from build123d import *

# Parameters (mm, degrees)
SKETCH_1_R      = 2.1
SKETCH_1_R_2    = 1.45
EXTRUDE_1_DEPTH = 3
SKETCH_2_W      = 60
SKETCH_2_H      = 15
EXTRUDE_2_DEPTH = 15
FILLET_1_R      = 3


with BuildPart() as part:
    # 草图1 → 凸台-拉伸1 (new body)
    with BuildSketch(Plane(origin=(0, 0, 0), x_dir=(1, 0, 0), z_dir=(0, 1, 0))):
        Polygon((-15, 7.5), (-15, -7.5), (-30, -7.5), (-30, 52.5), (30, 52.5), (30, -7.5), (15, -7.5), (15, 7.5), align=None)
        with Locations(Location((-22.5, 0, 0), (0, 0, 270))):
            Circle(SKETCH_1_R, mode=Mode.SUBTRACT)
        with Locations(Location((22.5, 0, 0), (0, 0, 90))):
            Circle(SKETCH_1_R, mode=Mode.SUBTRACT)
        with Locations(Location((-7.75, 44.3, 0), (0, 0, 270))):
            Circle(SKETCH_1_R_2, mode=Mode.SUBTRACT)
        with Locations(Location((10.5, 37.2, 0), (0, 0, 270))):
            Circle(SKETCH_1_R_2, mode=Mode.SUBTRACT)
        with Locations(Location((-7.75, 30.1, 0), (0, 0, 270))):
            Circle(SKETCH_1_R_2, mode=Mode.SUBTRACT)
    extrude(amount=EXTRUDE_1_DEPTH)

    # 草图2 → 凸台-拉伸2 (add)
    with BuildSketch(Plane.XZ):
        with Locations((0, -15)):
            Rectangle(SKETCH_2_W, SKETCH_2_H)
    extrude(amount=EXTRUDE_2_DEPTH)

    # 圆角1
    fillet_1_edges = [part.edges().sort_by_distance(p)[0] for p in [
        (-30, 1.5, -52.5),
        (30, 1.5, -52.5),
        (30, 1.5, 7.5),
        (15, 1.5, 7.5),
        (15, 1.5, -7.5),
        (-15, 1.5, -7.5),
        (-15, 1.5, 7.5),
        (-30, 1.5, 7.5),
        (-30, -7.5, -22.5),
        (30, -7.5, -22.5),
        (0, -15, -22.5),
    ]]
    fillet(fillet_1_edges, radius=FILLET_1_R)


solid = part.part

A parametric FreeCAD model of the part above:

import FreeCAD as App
import Part
import Sketcher
from FreeCAD import Vector


def edges_at(feature, points):
    """Names of the edges that pass closest to the given points."""
    edges = feature.Shape.Edges
    near = lambda p: min(range(len(edges)), key=lambda i: edges[i].distToShape(Part.Vertex(*p))[0])
    return sorted({f"Edge{near(p) + 1}" for p in points})

doc = App.newDocument("Part")
body = doc.addObject("PartDesign::Body", "Body")

# Sketch on XZ plane
sketch1 = body.newObject("Sketcher::SketchObject", "Sketch")
sketch1.AttachmentSupport = (doc.getObject("XZ_Plane"), [""])
sketch1.MapMode = "FlatFace"
sketch1.addGeometry([
    Part.LineSegment(Vector(-15, 7.5, 0), Vector(-15, -7.5, 0)),  # 0
    Part.LineSegment(Vector(-15, -7.5, 0), Vector(15, -7.5, 0)),  # 1
    Part.LineSegment(Vector(15, -7.5, 0), Vector(15, 7.5, 0)),  # 2
    Part.LineSegment(Vector(15, 7.5, 0), Vector(30, 7.5, 0)),  # 3
    Part.LineSegment(Vector(30, 7.5, 0), Vector(30, -52.5, 0)),  # 4
    Part.LineSegment(Vector(30, -52.5, 0), Vector(-30, -52.5, 0)),  # 5
    Part.LineSegment(Vector(-30, -52.5, 0), Vector(-30, 7.5, 0)),  # 6
    Part.LineSegment(Vector(-30, 7.5, 0), Vector(-15, 7.5, 0)),  # 7
    Part.Circle(Vector(22.5, 0, 0), Vector(0, 0, 1), 2.1),  # 8
    Part.Circle(Vector(-22.5, 0, 0), Vector(0, 0, 1), 2.1),  # 9
    Part.Circle(Vector(10.5, -37.2, 0), Vector(0, 0, 1), 1.4),  # 10
    Part.Circle(Vector(-7.8, -30.1, 0), Vector(0, 0, 1), 1.4),  # 11
    Part.Circle(Vector(-7.8, -44.3, 0), Vector(0, 0, 1), 1.4),  # 12
], False)
sketch1.addConstraint([
    Sketcher.Constraint("Coincident", 0, 2, 1, 1),
    Sketcher.Constraint("Coincident", 1, 2, 2, 1),
    Sketcher.Constraint("Coincident", 2, 2, 3, 1),
    Sketcher.Constraint("Coincident", 3, 2, 4, 1),
    Sketcher.Constraint("Coincident", 4, 2, 5, 1),
    Sketcher.Constraint("Coincident", 5, 2, 6, 1),
    Sketcher.Constraint("Coincident", 6, 2, 7, 1),
    Sketcher.Constraint("Coincident", 7, 2, 0, 1),
    Sketcher.Constraint("Vertical", 0),
    Sketcher.Constraint("Horizontal", 1),
    Sketcher.Constraint("Vertical", 2),
    Sketcher.Constraint("Horizontal", 3),
    Sketcher.Constraint("Vertical", 4),
    Sketcher.Constraint("Horizontal", 5),
    Sketcher.Constraint("Vertical", 6),
    Sketcher.Constraint("Horizontal", 7),
    Sketcher.Constraint("Equal", 8, 9),
    Sketcher.Constraint("Equal", 10, 11),
    Sketcher.Constraint("Equal", 11, 12),
    Sketcher.Constraint("Symmetric", 8, 3, 9, 3, -1, 1),
    Sketcher.Constraint("Symmetric", 0, 2, 2, 2, -1, 1),
    Sketcher.Constraint("Symmetric", 3, 2, 6, 2, -2),
    Sketcher.Constraint("PointOnObject", 8, 3, -1),
    Sketcher.Constraint("Vertical", 11, 3, 12, 3),
    Sketcher.Constraint("Equal", 7, 0),
    Sketcher.Constraint("Equal", 5, 4),
    Sketcher.Constraint("Diameter", 8, 4.2),
    Sketcher.Constraint("Diameter", 10, 2.9),
    Sketcher.Constraint("DistanceX", 1, 1, 1, 2, 30.0),
    Sketcher.Constraint("DistanceX", 3, 1, 3, 2, 15.0),
    Sketcher.Constraint("DistanceX", 9, 3, 8, 3, 45.0),
    Sketcher.Constraint("DistanceX", 10, 3, 8, 3, 12.0),
    Sketcher.Constraint("DistanceY", 10, 3, -1, 1, 37.2),
    Sketcher.Constraint("DistanceY", 11, 3, -1, 1, 30.1),
    Sketcher.Constraint("DistanceY", 12, 3, -1, 1, 44.3),
    Sketcher.Constraint("DistanceX", 11, 3, -1, 1, 7.75),
])
pad1 = body.newObject("PartDesign::Pad", "Pad")
pad1.Profile = sketch1
pad1.Length = 3
pad1.Reversed = True

# Sketch on XZ plane
sketch2 = body.newObject("Sketcher::SketchObject", "Sketch001")
sketch2.AttachmentSupport = (doc.getObject("XZ_Plane"), [""])
sketch2.MapMode = "FlatFace"
sketch2.addGeometry([
    Part.LineSegment(Vector(-30, -8, 0), Vector(-30, -22, 0)),
    Part.LineSegment(Vector(-30, -22, 0), Vector(30, -22, 0)),
    Part.LineSegment(Vector(30, -22, 0), Vector(30, -8, 0)),
    Part.LineSegment(Vector(30, -8, 0), Vector(-30, -8, 0)),
], False)
sketch2.addConstraint([
    Sketcher.Constraint("Coincident", 0, 2, 1, 1),
    Sketcher.Constraint("Coincident", 1, 2, 2, 1),
    Sketcher.Constraint("Coincident", 2, 2, 3, 1),
    Sketcher.Constraint("Coincident", 3, 2, 0, 1),
    Sketcher.Constraint("Vertical", 0),
    Sketcher.Constraint("Horizontal", 1),
    Sketcher.Constraint("Vertical", 2),
    Sketcher.Constraint("Horizontal", 3),
    Sketcher.Constraint("DistanceX", 1, 1, 1, 2, 60.0),
    Sketcher.Constraint("DistanceY", 0, 2, 0, 1, 15.0),
    Sketcher.Constraint("DistanceX", 0, 2, -1, 1, 30.0),
    Sketcher.Constraint("DistanceY", 0, 2, -1, 1, 22.5),
])
pad2 = body.newObject("PartDesign::Pad", "Pad001")
pad2.Profile = sketch2
pad2.Length = 15
doc.recompute()

fillet = body.newObject("PartDesign::Fillet", "Fillet")
fillet.Base = (pad2, edges_at(pad2, [
    (-30, 1.5, -52.5),
    (30, 1.5, -52.5),
    (30, 1.5, 7.5),
    (15, 1.5, 7.5),
    (15, 1.5, -7.5),
    (-15, 1.5, -7.5),
    (-15, 1.5, 7.5),
    (-30, 1.5, 7.5),
    (-30, -7.5, -22.5),
    (30, -7.5, -22.5),
    (0, -15, -22.5),
]))
fillet.Radius = 3

doc.recompute()
